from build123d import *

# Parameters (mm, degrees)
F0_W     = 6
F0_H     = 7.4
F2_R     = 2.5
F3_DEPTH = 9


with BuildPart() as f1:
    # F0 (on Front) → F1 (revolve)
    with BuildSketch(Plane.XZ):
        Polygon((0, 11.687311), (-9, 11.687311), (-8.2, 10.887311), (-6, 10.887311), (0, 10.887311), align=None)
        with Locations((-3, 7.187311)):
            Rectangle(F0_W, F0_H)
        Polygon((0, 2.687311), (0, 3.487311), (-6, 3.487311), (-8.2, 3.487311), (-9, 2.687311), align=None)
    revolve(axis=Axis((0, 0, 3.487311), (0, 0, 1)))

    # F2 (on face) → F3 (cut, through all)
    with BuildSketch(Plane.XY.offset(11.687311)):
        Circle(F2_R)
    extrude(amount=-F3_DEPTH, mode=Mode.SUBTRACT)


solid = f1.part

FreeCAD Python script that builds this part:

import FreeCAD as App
import Part
import Sketcher
from FreeCAD import Vector
Q = App.Units.Quantity


def add_polygon(sketch, points):
    """Adds a closed chain of lines whose ends are joined by coincident constraints."""
    first, n = sketch.GeometryCount, len(points)
    for a, b in zip(points, points[1:] + points[:1]):
        sketch.addGeometry(Part.LineSegment(App.Vector(*a, 0), App.Vector(*b, 0)), False)
    for i in range(n):
        sketch.addConstraint(Sketcher.Constraint("Coincident", first + i, 2, first + (i + 1) % n, 1))

doc = App.newDocument("Part")
body = doc.addObject("PartDesign::Body", "Body")

# Sketch on XZ plane
sketch1 = body.newObject("Sketcher::SketchObject", "Sketch")
sketch1.AttachmentSupport = (doc.getObject("XZ_Plane"), [""])
sketch1.MapMode = "FlatFace"
add_polygon(sketch1, [(0, 11.7), (-9, 11.7), (-8.2, 10.9), (-6, 10.9), (-6, 3.5), (-8.2, 3.5), (-9, 2.7), (0, 2.7)])  # lines 0-7
sketch1.addConstraint(Sketcher.Constraint("Horizontal", 0))
sketch1.addConstraint(Sketcher.Constraint("Horizontal", 2))
sketch1.addConstraint(Sketcher.Constraint("Vertical", 3))
sketch1.addConstraint(Sketcher.Constraint("Horizontal", 4))
sketch1.addConstraint(Sketcher.Constraint("Horizontal", 6))
sketch1.addConstraint(Sketcher.Constraint("Vertical", 7))
sketch1.addConstraint(Sketcher.Constraint("PointOnObject", 6, 2, -2))
sketch1.addConstraint(Sketcher.Constraint("Perpendicular", 1, 5))
sketch1.addConstraint(Sketcher.Constraint("Vertical", 1, 2, 4, 2))
sketch1.addConstraint(Sketcher.Constraint("Vertical", 0, 2, 5, 2))
sketch1.addConstraint(Sketcher.Constraint("Equal", 6, 7))
sketch1.addConstraint(Sketcher.Constraint("Equal", 1, 5))
sketch1.addConstraint(Sketcher.Constraint("DistanceX", 0, 2, 0, 1, Q("9 mm")))
sketch1.addConstraint(Sketcher.Constraint("DistanceX", 2, 1, 2, 2, Q("2.2 mm")))
sketch1.addConstraint(Sketcher.Constraint("DistanceY", 3, 2, 3, 1, Q("7.4 mm")))
sketch1.addConstraint(Sketcher.Constraint("DistanceY", -1, 1, 0, 2, Q("11.687311 mm")))
revolution = body.newObject("PartDesign::Revolution", "Revolution")
revolution.Profile = sketch1
revolution.ReferenceAxis = (sketch1, ["V_Axis"])
revolution.Angle = 360

# Sketch on XY plane
sketch2 = body.newObject("Sketcher::SketchObject", "Sketch001")
sketch2.AttachmentSupport = (doc.getObject("XY_Plane"), [""])
sketch2.MapMode = "FlatFace"
sketch2.AttachmentOffset = App.Placement(Vector(0, 0, 11.687311), App.Rotation())
sketch2.addGeometry(Part.Circle(Vector(0, 0, 0), Vector(0, 0, 1), 2.5), False)
sketch2.addConstraint(Sketcher.Constraint("Coincident", 0, 3, -1, 1))
sketch2.addConstraint(Sketcher.Constraint("Diameter", 0, Q("5 mm")))
pocket1 = body.newObject("PartDesign::Pocket", "Pocket")
pocket1.Profile = sketch2
pocket1.Type = "ThroughAll"

doc.recompute()
